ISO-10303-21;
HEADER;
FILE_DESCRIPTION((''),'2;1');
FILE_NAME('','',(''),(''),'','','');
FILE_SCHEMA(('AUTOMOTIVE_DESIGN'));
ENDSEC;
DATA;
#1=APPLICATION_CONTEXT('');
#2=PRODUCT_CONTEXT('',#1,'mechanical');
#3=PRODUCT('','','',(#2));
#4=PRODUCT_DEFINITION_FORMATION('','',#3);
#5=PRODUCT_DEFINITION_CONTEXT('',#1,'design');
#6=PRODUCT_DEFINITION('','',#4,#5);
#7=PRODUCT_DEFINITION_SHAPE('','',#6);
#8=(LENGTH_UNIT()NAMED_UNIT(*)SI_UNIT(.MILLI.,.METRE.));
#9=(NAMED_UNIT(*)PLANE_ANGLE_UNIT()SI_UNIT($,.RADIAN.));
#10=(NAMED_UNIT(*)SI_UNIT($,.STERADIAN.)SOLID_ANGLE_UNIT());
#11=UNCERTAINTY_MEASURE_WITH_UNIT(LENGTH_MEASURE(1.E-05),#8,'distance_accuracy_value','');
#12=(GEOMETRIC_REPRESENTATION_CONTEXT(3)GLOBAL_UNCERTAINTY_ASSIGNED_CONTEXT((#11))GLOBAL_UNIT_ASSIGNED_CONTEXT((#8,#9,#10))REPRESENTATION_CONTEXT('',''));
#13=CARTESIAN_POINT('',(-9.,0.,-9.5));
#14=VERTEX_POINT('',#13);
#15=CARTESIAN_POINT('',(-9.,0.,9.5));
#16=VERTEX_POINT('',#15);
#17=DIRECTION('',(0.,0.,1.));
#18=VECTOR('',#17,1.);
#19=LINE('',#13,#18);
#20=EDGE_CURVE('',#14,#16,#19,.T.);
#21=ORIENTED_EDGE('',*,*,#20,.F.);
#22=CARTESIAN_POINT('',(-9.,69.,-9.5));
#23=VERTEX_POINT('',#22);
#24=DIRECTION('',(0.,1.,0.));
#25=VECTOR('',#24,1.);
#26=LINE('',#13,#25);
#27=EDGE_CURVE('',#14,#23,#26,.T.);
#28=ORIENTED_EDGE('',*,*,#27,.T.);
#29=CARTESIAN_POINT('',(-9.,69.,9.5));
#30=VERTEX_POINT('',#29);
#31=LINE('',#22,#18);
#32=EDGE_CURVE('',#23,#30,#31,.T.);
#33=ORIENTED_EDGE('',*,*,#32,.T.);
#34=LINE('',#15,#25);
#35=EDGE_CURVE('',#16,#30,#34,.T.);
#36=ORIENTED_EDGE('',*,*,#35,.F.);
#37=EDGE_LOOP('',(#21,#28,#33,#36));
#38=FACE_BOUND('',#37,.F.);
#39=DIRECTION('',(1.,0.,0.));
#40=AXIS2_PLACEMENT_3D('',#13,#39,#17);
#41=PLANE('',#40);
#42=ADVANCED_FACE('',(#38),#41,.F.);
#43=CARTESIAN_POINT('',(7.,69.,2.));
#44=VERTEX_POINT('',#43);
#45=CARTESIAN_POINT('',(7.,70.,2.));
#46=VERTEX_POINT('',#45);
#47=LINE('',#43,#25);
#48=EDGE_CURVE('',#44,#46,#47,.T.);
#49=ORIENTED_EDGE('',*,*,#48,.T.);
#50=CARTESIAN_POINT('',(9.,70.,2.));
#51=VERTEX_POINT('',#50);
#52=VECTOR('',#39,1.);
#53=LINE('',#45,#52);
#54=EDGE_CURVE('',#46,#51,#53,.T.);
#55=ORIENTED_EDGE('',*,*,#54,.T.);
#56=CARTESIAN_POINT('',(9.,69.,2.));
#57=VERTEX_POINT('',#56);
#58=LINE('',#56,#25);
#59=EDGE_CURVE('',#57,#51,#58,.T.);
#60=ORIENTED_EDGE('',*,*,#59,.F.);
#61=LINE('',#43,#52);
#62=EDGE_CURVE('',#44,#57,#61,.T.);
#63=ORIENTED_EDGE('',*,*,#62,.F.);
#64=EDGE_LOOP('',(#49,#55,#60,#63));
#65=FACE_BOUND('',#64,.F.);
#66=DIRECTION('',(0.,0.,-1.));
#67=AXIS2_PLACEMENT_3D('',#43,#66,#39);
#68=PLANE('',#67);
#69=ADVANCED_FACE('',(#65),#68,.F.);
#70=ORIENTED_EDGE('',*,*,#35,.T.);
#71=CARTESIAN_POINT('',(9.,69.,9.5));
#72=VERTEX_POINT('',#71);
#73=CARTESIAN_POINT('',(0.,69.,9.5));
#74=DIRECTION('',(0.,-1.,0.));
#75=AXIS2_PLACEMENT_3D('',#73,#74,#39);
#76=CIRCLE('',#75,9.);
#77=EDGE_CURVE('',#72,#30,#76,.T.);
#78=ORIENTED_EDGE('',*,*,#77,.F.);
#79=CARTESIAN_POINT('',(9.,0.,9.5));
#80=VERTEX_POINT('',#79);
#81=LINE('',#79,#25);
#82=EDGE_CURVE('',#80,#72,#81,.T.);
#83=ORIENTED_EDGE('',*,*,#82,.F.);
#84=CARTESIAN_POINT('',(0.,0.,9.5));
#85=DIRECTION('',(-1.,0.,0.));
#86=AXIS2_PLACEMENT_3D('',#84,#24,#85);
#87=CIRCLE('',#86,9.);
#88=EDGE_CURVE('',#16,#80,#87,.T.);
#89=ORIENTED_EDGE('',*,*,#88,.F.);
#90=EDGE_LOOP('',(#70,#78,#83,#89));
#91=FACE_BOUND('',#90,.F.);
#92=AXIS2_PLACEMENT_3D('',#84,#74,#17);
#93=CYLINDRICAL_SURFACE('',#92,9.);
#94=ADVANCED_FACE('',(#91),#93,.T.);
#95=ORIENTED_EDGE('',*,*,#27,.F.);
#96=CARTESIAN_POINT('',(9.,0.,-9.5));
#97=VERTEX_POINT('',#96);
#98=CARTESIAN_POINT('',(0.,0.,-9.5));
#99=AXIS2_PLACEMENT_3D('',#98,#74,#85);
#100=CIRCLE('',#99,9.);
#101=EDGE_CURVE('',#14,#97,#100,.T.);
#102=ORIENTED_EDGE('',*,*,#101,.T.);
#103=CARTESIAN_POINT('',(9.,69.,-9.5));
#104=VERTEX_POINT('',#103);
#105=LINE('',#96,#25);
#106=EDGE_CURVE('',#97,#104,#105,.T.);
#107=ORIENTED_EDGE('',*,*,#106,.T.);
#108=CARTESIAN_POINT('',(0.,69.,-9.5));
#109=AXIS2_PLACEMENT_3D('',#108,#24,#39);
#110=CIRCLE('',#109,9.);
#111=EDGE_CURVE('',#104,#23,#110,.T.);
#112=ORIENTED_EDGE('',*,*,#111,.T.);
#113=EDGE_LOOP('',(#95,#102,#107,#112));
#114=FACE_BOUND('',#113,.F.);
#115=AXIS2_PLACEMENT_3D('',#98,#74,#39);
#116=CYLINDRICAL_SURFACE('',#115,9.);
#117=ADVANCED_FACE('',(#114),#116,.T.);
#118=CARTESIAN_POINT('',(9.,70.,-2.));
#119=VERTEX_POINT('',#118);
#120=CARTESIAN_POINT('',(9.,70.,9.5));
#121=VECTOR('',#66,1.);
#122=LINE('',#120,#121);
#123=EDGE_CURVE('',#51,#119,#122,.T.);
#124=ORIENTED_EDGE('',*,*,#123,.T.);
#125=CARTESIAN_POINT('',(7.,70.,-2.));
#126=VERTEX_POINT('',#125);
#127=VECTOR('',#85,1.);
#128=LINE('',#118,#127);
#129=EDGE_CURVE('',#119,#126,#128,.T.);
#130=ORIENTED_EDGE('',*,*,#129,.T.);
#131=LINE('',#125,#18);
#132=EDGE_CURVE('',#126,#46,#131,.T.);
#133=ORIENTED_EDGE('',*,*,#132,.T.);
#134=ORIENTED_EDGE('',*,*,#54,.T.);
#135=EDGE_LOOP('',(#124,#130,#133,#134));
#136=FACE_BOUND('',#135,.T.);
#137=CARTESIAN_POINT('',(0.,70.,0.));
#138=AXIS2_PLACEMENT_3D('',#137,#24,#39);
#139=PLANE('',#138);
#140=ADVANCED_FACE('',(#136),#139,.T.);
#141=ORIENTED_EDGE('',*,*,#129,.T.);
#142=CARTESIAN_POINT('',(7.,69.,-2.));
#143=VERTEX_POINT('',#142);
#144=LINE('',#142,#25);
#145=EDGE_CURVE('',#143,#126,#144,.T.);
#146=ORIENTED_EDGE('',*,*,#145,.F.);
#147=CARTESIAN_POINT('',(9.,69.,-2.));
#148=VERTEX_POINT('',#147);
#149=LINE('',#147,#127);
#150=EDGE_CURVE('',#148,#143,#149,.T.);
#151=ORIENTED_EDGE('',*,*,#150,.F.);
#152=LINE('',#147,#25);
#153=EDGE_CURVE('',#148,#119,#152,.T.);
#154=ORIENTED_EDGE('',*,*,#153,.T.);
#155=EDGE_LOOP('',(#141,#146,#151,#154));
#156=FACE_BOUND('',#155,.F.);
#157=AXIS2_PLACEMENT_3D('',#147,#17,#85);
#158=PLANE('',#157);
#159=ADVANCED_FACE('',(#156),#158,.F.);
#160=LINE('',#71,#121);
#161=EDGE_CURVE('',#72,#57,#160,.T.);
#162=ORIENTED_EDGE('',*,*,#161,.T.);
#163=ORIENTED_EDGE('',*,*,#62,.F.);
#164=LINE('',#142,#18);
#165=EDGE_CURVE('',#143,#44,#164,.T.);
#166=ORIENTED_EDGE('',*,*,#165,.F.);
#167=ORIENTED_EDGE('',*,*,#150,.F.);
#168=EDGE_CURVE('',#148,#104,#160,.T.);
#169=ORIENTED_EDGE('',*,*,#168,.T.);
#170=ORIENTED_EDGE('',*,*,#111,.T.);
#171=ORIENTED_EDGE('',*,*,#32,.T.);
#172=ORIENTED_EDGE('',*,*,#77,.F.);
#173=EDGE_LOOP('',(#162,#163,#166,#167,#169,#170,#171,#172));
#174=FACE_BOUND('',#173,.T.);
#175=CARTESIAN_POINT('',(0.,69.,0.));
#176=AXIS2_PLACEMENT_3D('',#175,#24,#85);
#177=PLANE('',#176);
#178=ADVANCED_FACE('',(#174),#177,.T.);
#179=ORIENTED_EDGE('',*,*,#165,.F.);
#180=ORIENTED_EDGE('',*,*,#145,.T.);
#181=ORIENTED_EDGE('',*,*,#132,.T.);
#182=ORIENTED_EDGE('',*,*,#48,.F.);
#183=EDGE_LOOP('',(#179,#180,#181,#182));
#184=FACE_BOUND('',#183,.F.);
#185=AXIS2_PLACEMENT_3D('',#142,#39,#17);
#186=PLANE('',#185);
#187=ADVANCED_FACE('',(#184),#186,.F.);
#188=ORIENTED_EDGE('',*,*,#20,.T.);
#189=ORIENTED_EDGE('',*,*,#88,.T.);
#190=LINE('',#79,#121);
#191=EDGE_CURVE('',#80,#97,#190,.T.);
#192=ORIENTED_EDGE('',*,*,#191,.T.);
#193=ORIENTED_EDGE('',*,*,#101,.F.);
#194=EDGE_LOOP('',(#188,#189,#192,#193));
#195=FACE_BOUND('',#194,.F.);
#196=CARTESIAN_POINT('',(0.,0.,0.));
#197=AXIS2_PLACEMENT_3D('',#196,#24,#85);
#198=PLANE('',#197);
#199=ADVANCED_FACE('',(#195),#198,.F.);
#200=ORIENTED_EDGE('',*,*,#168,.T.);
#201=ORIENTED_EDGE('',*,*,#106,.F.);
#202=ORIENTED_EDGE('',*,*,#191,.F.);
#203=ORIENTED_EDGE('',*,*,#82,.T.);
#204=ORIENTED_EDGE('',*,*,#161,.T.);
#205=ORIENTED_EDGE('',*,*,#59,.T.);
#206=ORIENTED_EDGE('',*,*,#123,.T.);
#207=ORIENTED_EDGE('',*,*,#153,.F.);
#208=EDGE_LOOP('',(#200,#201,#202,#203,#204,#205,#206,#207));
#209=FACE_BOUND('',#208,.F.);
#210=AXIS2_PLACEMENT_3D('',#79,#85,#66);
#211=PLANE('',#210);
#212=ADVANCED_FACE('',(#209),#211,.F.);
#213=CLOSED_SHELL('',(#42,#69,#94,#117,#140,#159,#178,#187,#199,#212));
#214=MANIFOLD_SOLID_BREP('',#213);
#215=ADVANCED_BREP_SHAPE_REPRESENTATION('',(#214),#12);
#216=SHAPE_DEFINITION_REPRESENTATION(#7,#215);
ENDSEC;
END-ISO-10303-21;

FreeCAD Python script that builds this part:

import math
import FreeCAD as App
import Part
import Sketcher
Q = App.Units.Quantity

doc = App.newDocument("Part")
body = doc.addObject("PartDesign::Body", "Body")

# Sketch on XZ plane
sketch1 = body.newObject("Sketcher::SketchObject", "Sketch")
sketch1.AttachmentSupport = (doc.getObject("XZ_Plane"), [""])
sketch1.MapMode = "FlatFace"
sketch1.addGeometry(Part.ArcOfCircle(Part.Circle(App.Vector(0, 10, 0), App.Vector(0, 0, 1), 9), math.radians(0), math.radians(180)), False)
sketch1.addGeometry(Part.LineSegment(App.Vector(9, 10, 0), App.Vector(9, -10, 0)), False)
sketch1.addGeometry(Part.ArcOfCircle(Part.Circle(App.Vector(0, -10, 0), App.Vector(0, 0, 1), 9), math.radians(180), math.radians(360)), False)
sketch1.addGeometry(Part.LineSegment(App.Vector(-9, -10, 0), App.Vector(-9, 10, 0)), False)
sketch1.addConstraint(Sketcher.Constraint("Tangent", 0, 1, 1, 1))
sketch1.addConstraint(Sketcher.Constraint("Tangent", 1, 2, 2, 2))
sketch1.addConstraint(Sketcher.Constraint("Tangent", 2, 1, 3, 1))
sketch1.addConstraint(Sketcher.Constraint("Tangent", 3, 2, 0, 2))
sketch1.addConstraint(Sketcher.Constraint("Vertical", 1))
sketch1.addConstraint(Sketcher.Constraint("Vertical", 3))
sketch1.addConstraint(Sketcher.Constraint("Symmetric", 0, 3, 2, 3, -1, 1))
sketch1.addConstraint(Sketcher.Constraint("Radius", 0, Q("9 mm")))
sketch1.addConstraint(Sketcher.Constraint("DistanceY", 1, 2, 1, 1, Q("19 mm")))
pad1 = body.newObject("PartDesign::Pad", "Pad")
pad1.Profile = sketch1
pad1.Length = 69
pad1.Reversed = True

# Sketch on XZ plane
sketch2 = body.newObject("Sketcher::SketchObject", "Sketch001")
sketch2.AttachmentSupport = (doc.getObject("XZ_Plane"), [""])
sketch2.MapMode = "FlatFace"
sketch2.AttachmentOffset = App.Placement(App.Vector(0, 0, -69), App.Rotation())
sketch2.addGeometry(Part.LineSegment(App.Vector(7, 2, 0), App.Vector(9, 2, 0)), False)
sketch2.addGeometry(Part.LineSegment(App.Vector(9, 2, 0), App.Vector(9, -2, 0)), False)
sketch2.addGeometry(Part.LineSegment(App.Vector(9, -2, 0), App.Vector(7, -2, 0)), False)
sketch2.addGeometry(Part.LineSegment(App.Vector(7, -2, 0), App.Vector(7, 2, 0)), False)
sketch2.addConstraint(Sketcher.Constraint("Coincident", 0, 2, 1, 1))
sketch2.addConstraint(Sketcher.Constraint("Coincident", 1, 2, 2, 1))
sketch2.addConstraint(Sketcher.Constraint("Coincident", 2, 2, 3, 1))
sketch2.addConstraint(Sketcher.Constraint("Coincident", 3, 2, 0, 1))
sketch2.addConstraint(Sketcher.Constraint("Horizontal", 0))
sketch2.addConstraint(Sketcher.Constraint("Vertical", 1))
sketch2.addConstraint(Sketcher.Constraint("Horizontal", 2))
sketch2.addConstraint(Sketcher.Constraint("Vertical", 3))
sketch2.addConstraint(Sketcher.Constraint("DistanceX", 0, 1, 0, 2, Q("2 mm")))
sketch2.addConstraint(Sketcher.Constraint("DistanceY", 1, 2, 1, 1, Q("4 mm")))
sketch2.addConstraint(Sketcher.Constraint("DistanceY", -1, 1, 0, 2, Q("2 mm")))
sketch2.addConstraint(Sketcher.Constraint("DistanceX", -1, 1, 0, 2, Q("9 mm")))
pad2 = body.newObject("PartDesign::Pad", "Pad001")
pad2.Profile = sketch2
pad2.Length = 1
pad2.Reversed = True

doc.recompute()
